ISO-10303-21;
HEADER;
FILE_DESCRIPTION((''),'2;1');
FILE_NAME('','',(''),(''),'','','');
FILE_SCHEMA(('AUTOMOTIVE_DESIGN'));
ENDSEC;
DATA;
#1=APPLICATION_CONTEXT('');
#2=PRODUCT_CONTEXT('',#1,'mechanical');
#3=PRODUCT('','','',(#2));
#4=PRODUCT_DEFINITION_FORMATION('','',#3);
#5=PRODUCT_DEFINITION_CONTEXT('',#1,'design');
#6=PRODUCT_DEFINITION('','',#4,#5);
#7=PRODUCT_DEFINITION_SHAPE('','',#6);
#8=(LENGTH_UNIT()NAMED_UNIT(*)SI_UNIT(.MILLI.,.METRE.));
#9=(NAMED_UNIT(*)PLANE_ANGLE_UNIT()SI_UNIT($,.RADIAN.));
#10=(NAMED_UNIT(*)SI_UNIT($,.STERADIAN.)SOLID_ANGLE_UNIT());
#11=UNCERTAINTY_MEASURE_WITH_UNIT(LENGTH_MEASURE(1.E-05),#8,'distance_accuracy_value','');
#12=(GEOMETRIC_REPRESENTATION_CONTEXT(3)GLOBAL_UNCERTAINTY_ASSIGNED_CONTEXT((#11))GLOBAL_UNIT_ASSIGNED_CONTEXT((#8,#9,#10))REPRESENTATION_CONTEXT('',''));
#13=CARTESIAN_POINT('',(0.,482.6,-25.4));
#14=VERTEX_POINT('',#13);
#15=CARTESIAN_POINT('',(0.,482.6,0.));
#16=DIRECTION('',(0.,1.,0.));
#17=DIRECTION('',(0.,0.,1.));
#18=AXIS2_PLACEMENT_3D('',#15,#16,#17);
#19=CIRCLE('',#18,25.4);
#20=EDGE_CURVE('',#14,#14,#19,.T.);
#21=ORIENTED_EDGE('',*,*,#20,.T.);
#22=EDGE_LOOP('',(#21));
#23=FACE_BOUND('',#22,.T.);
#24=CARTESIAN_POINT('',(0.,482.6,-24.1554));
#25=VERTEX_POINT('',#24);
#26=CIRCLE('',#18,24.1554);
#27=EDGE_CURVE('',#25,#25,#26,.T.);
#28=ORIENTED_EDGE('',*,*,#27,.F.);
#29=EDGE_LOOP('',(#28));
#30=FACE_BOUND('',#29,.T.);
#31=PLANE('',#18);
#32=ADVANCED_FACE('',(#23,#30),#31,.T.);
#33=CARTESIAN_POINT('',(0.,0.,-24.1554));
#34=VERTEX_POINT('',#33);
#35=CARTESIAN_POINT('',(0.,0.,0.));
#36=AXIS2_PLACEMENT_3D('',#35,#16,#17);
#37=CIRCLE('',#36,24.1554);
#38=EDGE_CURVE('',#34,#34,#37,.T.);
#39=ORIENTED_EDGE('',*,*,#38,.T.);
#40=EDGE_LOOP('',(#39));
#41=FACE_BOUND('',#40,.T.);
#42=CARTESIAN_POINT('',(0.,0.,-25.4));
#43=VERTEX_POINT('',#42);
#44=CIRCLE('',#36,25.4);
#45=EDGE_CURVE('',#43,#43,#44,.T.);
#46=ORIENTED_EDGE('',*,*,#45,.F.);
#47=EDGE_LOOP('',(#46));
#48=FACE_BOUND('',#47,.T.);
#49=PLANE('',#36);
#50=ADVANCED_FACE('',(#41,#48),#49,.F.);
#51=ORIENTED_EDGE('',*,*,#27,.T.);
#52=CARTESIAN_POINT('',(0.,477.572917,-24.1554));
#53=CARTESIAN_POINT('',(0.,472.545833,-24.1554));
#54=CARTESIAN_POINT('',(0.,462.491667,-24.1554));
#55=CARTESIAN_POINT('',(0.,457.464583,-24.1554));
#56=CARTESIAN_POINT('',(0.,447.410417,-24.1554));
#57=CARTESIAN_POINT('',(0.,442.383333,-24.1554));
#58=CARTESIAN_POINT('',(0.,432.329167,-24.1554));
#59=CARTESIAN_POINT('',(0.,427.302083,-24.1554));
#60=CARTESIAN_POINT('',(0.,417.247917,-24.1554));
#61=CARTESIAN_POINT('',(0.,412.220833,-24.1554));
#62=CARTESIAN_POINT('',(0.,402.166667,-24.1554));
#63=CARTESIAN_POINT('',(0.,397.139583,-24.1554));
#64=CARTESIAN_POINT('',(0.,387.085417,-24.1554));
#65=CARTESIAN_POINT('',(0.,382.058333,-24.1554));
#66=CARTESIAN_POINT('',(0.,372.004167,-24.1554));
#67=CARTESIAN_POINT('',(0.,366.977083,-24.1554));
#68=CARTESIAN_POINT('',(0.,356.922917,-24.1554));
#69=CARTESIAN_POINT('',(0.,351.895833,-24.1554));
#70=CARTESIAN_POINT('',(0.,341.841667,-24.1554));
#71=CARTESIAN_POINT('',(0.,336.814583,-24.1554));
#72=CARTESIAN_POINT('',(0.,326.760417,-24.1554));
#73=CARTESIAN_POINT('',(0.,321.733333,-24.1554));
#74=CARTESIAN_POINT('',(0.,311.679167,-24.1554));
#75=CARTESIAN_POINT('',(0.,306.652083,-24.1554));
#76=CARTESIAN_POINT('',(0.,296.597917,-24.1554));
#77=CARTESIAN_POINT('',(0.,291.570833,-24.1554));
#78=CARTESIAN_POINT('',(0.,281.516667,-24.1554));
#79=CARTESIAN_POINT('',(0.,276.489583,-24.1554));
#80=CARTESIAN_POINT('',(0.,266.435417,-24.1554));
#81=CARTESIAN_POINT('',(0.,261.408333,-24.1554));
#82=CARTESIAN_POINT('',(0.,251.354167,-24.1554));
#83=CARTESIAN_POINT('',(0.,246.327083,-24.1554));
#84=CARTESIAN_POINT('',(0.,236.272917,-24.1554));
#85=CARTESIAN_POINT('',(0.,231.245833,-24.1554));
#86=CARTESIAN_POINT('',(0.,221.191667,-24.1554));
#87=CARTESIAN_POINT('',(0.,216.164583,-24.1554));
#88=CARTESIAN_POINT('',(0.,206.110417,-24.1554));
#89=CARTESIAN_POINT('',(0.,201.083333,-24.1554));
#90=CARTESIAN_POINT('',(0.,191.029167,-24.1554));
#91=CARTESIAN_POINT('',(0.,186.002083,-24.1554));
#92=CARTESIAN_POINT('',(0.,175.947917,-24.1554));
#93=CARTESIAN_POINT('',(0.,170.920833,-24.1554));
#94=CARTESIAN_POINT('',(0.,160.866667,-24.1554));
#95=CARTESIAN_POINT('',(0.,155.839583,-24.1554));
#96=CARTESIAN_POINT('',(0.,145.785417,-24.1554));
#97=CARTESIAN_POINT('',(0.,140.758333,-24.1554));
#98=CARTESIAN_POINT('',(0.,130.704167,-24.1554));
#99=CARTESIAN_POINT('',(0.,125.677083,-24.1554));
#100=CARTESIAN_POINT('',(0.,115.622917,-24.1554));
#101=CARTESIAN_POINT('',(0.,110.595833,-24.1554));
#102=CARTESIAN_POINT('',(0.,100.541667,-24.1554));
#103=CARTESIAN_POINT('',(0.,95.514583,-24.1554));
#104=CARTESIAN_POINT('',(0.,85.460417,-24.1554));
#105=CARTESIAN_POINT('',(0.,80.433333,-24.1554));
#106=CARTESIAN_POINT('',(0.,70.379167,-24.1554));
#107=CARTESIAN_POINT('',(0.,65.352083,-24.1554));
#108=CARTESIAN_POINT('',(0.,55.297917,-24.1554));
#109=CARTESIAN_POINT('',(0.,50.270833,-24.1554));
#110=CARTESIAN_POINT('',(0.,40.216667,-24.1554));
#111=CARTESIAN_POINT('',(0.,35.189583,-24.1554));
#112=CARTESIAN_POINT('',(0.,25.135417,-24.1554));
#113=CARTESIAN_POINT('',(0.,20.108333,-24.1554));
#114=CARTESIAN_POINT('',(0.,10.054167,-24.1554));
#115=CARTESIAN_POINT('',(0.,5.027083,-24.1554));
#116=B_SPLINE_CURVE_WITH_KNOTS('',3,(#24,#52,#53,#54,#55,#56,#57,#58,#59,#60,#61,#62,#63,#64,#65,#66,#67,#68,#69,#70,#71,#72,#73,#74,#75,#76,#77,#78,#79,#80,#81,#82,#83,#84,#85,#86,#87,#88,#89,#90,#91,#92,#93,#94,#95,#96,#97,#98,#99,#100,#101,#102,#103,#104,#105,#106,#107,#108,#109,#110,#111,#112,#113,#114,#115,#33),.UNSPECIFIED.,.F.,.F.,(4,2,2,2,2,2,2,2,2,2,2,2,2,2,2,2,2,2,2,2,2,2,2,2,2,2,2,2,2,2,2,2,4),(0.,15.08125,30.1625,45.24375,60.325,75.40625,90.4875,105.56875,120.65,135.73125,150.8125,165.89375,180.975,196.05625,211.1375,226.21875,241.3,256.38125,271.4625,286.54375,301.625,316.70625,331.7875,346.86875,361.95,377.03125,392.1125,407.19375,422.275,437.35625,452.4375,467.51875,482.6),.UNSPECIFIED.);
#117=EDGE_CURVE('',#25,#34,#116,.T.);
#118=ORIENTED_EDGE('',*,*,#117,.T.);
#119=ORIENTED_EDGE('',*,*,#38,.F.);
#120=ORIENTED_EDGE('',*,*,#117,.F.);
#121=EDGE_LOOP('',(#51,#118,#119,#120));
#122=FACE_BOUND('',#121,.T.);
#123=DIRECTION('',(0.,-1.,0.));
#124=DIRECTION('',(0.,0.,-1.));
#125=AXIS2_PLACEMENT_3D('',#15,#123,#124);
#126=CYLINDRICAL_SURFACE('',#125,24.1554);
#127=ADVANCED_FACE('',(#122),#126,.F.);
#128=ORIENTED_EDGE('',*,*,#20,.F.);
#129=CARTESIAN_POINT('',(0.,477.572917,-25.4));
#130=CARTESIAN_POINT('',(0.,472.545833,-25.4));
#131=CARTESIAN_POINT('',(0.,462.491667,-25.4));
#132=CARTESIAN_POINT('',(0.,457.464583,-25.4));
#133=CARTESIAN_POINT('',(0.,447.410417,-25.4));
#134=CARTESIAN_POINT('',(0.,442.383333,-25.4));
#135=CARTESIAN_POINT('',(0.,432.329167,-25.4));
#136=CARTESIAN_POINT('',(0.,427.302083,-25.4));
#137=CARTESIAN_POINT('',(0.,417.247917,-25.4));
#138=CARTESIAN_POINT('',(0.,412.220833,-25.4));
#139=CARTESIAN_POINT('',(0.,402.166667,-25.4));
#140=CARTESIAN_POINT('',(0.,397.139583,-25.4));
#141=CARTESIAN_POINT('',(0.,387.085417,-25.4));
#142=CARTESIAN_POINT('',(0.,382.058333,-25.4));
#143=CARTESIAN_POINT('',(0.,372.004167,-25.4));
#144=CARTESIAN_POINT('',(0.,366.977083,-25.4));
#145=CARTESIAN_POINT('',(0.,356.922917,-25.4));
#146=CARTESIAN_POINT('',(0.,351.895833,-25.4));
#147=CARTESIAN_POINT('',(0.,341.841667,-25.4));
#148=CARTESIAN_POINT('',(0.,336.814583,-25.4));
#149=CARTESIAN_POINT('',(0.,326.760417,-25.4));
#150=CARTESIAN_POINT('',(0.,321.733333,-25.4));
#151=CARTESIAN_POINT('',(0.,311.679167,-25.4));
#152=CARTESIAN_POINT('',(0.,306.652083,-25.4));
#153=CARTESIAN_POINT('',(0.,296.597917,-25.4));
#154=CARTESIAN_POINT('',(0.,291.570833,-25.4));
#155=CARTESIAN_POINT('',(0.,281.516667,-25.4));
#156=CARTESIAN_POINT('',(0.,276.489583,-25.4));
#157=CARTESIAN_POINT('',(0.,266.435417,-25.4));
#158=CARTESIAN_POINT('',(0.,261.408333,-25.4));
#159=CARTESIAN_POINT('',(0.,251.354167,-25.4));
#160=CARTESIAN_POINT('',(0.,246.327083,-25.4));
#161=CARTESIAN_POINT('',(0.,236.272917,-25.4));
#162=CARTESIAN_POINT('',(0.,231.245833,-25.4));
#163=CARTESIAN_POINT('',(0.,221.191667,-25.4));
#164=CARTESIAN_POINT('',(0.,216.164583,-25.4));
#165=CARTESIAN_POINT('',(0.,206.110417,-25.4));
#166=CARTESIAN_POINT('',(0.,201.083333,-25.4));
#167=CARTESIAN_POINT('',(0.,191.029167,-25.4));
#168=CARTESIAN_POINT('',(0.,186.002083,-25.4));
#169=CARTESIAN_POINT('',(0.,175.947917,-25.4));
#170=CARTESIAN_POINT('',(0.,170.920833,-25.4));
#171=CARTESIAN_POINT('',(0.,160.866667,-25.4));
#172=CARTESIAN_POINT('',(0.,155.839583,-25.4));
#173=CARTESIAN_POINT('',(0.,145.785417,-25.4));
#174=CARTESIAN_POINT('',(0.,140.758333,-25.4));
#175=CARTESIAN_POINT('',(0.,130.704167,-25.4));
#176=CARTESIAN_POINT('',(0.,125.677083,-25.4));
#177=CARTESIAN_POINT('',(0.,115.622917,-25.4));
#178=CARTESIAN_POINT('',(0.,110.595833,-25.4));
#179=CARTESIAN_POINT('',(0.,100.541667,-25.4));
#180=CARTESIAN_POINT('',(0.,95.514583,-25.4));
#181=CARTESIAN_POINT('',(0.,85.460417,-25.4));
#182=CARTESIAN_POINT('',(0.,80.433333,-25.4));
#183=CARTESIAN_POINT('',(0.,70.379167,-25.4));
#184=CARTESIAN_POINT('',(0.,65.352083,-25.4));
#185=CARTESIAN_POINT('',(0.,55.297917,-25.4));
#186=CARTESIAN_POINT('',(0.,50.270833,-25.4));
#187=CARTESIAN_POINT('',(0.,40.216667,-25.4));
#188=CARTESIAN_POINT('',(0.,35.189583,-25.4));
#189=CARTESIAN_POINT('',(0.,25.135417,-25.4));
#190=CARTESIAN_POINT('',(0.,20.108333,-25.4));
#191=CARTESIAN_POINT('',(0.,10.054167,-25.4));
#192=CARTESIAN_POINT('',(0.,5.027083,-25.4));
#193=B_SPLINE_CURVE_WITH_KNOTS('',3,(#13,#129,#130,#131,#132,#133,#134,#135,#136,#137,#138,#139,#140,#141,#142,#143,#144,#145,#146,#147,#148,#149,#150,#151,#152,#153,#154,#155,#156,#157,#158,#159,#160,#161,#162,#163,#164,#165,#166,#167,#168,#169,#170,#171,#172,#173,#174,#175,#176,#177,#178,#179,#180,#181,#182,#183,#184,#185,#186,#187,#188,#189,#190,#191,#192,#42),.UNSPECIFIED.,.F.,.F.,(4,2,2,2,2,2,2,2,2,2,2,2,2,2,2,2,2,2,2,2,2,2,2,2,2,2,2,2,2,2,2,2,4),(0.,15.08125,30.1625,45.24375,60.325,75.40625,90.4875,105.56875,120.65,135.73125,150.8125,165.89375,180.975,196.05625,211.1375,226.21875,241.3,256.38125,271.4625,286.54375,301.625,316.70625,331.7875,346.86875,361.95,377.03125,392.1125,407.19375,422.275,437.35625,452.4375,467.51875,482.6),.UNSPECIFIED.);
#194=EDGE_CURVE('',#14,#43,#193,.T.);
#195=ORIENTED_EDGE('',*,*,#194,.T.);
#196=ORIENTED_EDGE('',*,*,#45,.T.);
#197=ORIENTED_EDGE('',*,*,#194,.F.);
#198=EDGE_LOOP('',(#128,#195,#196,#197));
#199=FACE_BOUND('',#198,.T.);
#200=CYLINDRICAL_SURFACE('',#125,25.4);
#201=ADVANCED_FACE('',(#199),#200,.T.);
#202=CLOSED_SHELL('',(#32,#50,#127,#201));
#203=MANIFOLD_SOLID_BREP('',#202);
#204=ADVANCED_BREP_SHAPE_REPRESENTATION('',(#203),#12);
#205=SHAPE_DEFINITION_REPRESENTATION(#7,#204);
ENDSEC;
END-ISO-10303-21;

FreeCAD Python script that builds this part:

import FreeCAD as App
import Part
import Sketcher
from FreeCAD import Vector
Q = App.Units.Quantity

doc = App.newDocument("Part")
params = doc.addObject("Spreadsheet::Sheet", "Params")
for row, (alias, value) in enumerate([
    ("sketch1_diameter", "2 in"),
    ("sketch1_diameter2", "1.902 in"),
    ("pad1_length", "19 in"),
], start=1):
    params.set(f"A{row}", alias)
    params.set(f"B{row}", "=" + value)
    params.setAlias(f"B{row}", alias)

body = doc.addObject("PartDesign::Body", "Body")

sketch1 = body.newObject("Sketcher::SketchObject", "Sketch")
sketch1.AttachmentSupport = (doc.getObject("XZ_Plane"), [""])
sketch1.MapMode = "FlatFace"
sketch1.addGeometry([
    Part.Circle(Vector(0, 0, 0), Vector(0, 0, 1), 25.4),
    Part.Circle(Vector(0, 0, 0), Vector(0, 0, 1), 24.1554),
], False)
sketch1.addConstraint([
    Sketcher.Constraint("Coincident", 0, 3, -1, 1),
    Sketcher.Constraint("Coincident", 1, 3, -1, 1),
    Sketcher.Constraint("Diameter", 0, Q("2 in")),
    Sketcher.Constraint("Diameter", 1, Q("1.902 in")),
])
sketch1.setExpression("Constraints[2]", "Params.sketch1_diameter")
sketch1.setExpression("Constraints[3]", "Params.sketch1_diameter2")
pad1 = body.newObject("PartDesign::Pad", "Pad")
pad1.Profile = sketch1
pad1.setExpression("Length", "Params.pad1_length")
pad1.Reversed = True

doc.recompute()
